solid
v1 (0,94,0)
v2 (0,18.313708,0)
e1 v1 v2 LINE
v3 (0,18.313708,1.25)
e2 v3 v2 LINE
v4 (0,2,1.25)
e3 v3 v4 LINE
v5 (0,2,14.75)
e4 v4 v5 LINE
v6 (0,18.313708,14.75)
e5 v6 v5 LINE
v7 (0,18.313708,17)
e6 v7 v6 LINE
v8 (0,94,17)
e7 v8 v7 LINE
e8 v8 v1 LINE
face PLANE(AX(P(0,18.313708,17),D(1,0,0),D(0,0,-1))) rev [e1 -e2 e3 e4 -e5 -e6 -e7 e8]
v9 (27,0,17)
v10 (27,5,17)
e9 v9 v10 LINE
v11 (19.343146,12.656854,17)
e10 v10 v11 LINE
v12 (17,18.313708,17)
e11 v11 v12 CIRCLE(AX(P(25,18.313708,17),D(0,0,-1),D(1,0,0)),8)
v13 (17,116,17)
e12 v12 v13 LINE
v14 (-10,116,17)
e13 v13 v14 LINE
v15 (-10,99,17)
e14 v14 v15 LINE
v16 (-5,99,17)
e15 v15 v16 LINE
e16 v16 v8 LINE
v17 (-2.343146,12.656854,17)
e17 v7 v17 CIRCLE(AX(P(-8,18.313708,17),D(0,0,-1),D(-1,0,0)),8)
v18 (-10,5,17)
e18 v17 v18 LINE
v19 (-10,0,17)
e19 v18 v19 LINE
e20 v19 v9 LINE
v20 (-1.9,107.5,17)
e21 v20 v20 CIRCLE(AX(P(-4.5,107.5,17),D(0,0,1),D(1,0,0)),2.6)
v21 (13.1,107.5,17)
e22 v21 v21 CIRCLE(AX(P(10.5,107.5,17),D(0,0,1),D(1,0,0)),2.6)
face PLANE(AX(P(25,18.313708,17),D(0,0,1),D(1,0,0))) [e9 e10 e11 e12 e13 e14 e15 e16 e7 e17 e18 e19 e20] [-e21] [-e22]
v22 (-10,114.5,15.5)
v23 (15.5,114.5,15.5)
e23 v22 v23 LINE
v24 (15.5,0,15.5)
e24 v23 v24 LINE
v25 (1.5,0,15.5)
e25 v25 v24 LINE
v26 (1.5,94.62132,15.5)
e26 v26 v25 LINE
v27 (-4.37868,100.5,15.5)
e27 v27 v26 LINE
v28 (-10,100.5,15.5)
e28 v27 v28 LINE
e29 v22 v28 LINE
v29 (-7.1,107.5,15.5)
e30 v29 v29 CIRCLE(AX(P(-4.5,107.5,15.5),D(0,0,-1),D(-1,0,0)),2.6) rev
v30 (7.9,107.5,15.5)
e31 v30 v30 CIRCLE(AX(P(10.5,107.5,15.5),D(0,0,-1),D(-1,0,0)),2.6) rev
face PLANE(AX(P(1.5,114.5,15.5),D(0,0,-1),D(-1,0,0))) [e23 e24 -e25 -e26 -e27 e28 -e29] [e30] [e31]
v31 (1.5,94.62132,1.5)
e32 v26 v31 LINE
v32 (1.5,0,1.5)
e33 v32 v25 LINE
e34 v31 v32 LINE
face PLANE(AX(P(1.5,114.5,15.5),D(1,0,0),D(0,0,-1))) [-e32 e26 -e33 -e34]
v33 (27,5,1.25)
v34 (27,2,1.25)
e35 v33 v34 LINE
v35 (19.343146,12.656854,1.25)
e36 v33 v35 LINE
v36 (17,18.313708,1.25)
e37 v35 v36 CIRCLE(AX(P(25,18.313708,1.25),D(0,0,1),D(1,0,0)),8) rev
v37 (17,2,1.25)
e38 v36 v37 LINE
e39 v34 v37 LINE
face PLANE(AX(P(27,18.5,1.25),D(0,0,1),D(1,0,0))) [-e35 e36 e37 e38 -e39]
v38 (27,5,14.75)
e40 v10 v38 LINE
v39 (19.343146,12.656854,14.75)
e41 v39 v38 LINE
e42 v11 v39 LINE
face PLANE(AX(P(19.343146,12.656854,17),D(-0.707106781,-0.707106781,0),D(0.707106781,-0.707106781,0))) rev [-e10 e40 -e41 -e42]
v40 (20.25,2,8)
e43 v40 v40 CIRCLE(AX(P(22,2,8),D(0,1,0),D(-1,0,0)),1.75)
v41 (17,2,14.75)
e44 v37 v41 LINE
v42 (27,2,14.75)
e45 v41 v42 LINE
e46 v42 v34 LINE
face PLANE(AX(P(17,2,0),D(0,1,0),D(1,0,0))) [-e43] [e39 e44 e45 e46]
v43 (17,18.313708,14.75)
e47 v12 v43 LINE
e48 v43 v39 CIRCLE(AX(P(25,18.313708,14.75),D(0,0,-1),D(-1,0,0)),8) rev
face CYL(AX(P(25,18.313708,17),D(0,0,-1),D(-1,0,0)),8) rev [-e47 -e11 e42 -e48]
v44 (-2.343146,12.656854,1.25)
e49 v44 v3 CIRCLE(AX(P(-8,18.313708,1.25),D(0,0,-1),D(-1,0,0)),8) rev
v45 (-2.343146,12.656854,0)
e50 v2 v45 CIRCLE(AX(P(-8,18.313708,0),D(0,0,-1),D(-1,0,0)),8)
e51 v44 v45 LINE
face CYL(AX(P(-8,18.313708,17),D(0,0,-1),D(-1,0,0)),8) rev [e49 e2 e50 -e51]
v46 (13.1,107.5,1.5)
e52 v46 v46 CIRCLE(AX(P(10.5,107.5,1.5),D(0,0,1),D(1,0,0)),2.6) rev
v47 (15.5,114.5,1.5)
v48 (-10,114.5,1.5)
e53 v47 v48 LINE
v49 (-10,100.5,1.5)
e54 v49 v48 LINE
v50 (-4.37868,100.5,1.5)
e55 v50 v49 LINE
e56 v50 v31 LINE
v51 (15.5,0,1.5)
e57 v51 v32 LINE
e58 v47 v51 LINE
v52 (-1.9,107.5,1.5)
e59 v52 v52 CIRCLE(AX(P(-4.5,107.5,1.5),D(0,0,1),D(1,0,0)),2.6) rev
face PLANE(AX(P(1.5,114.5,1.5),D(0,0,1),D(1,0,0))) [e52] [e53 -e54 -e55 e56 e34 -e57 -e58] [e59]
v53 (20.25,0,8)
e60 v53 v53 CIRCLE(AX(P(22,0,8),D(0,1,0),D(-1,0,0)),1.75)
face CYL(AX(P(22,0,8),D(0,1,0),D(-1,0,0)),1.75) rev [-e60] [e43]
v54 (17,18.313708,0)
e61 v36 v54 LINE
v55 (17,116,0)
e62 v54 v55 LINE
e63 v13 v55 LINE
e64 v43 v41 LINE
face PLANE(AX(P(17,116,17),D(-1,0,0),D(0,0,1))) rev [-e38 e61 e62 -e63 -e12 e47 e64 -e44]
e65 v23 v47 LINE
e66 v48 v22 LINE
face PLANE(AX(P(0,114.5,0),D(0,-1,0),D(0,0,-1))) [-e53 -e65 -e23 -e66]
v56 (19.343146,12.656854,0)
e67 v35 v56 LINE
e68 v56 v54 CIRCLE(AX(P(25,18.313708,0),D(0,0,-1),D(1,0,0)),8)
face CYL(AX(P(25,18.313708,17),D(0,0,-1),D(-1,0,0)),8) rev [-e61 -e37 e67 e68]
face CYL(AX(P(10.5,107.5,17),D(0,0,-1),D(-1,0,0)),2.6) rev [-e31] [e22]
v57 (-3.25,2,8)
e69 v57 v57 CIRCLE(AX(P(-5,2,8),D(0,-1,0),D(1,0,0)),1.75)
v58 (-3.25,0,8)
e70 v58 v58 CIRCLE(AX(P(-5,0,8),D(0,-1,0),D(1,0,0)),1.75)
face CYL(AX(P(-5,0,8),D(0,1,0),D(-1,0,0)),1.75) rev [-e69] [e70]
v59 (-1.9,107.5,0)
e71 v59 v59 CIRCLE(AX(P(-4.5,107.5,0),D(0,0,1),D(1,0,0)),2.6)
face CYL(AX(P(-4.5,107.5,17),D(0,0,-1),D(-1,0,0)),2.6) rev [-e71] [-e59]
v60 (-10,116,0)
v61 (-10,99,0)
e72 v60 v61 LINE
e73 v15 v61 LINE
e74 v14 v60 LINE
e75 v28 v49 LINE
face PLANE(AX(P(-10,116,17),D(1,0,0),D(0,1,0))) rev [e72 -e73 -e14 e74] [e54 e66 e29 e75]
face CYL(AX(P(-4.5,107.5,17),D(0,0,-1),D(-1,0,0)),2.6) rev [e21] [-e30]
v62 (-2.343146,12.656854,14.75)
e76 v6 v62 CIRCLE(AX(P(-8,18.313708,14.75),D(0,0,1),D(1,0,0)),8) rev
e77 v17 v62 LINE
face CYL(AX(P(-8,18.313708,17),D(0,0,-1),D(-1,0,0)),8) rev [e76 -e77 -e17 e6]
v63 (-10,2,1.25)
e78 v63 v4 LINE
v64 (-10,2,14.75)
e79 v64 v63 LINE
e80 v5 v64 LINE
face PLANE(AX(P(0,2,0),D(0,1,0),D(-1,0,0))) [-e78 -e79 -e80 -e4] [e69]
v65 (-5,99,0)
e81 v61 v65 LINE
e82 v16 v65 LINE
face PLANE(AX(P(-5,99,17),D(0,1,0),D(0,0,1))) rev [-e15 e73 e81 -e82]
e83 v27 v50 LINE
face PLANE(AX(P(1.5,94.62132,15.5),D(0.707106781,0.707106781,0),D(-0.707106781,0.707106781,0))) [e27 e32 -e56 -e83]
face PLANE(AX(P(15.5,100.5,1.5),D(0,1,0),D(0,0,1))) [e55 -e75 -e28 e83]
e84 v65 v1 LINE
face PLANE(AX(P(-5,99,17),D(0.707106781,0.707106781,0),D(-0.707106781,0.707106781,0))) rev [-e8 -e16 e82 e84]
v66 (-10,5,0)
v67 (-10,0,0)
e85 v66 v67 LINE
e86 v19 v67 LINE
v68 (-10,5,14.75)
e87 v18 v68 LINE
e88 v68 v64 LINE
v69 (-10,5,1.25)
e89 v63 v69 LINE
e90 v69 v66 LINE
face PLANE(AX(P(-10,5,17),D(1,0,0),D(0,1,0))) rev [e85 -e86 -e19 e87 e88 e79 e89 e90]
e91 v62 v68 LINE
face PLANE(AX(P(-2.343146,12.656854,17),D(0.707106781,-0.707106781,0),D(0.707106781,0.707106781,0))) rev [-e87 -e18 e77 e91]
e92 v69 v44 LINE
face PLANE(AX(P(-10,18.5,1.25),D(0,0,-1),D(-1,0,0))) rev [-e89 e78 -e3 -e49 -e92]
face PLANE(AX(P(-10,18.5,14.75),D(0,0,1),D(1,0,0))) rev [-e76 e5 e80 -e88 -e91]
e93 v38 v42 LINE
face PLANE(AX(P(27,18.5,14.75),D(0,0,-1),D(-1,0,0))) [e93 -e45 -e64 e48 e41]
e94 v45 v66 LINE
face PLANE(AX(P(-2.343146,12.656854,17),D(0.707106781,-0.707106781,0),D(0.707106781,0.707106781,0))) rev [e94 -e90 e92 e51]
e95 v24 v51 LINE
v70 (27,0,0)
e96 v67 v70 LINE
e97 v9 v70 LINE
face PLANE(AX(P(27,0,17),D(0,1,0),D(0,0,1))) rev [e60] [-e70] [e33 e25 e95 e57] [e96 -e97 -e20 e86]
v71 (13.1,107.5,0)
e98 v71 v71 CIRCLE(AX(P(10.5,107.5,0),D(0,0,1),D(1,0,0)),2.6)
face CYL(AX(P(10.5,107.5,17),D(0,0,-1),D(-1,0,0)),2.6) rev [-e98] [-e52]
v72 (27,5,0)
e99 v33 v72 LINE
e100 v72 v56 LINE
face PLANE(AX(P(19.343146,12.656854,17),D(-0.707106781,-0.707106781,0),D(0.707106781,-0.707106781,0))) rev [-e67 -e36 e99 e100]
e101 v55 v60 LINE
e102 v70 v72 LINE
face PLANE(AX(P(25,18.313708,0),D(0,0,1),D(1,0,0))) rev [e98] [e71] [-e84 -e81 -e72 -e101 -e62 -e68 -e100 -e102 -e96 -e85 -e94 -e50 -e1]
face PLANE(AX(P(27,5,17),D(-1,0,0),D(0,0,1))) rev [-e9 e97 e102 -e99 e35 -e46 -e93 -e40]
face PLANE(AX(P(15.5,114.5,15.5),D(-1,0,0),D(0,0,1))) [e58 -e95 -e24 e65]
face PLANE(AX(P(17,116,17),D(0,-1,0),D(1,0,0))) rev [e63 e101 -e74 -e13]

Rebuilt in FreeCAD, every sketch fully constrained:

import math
import FreeCAD as App
import Part
import Sketcher

V = App.Vector


def add_polygon(sketch, points):
    """Adds a closed chain of lines whose ends are joined by coincident constraints."""
    first, n = sketch.GeometryCount, len(points)
    for a, b in zip(points, points[1:] + points[:1]):
        sketch.addGeometry(Part.LineSegment(App.Vector(*a, 0), App.Vector(*b, 0)), False)
    for i in range(n):
        sketch.addConstraint(Sketcher.Constraint("Coincident", first + i, 2, first + (i + 1) % n, 1))

doc = App.newDocument("Part")
body = doc.addObject("PartDesign::Body", "Body")

# Sketch on XY plane
sketch1 = body.newObject("Sketcher::SketchObject", "Sketch")
sketch1.AttachmentSupport = (doc.getObject("XY_Plane"), [""])
sketch1.MapMode = "FlatFace"
sketch1.addGeometry([
    Part.LineSegment(V(0, 94, 0), V(0, 18, 0)),  # 0
    Part.ArcOfCircle(Part.Circle(V(-8, 18, 0), V(0, 0, 1), 8), math.radians(-45), math.radians(0)),  # 1
    Part.LineSegment(V(-2, 13, 0), V(-10, 5, 0)),  # 2
    Part.LineSegment(V(-10, 5, 0), V(-10, 0, 0)),  # 3
    Part.LineSegment(V(-10, 0, 0), V(27, 0, 0)),  # 4
    Part.LineSegment(V(27, 0, 0), V(27, 5, 0)),  # 5
    Part.LineSegment(V(27, 5, 0), V(19, 13, 0)),  # 6
    Part.ArcOfCircle(Part.Circle(V(25, 18, 0), V(0, 0, 1), 8), math.radians(180), math.radians(225)),  # 7
    Part.LineSegment(V(17, 18, 0), V(17, 116, 0)),  # 8
    Part.LineSegment(V(17, 116, 0), V(-10, 116, 0)),  # 9
    Part.LineSegment(V(-10, 116, 0), V(-10, 99, 0)),  # 10
    Part.LineSegment(V(-10, 99, 0), V(-5, 99, 0)),  # 11
    Part.LineSegment(V(-5, 99, 0), V(0, 94, 0)),  # 12
], False)
sketch1.addConstraint([
    Sketcher.Constraint("Tangent", 0, 2, 1, 2),
    Sketcher.Constraint("Tangent", 1, 1, 2, 1),
    Sketcher.Constraint("Coincident", 2, 2, 3, 1),
    Sketcher.Constraint("Coincident", 3, 2, 4, 1),
    Sketcher.Constraint("Coincident", 4, 2, 5, 1),
    Sketcher.Constraint("Coincident", 5, 2, 6, 1),
    Sketcher.Constraint("Tangent", 6, 2, 7, 2),
    Sketcher.Constraint("Tangent", 7, 1, 8, 1),
    Sketcher.Constraint("Coincident", 8, 2, 9, 1),
    Sketcher.Constraint("Coincident", 9, 2, 10, 1),
    Sketcher.Constraint("Coincident", 10, 2, 11, 1),
    Sketcher.Constraint("Coincident", 11, 2, 12, 1),
    Sketcher.Constraint("Coincident", 12, 2, 0, 1),
    Sketcher.Constraint("Vertical", 0),
    Sketcher.Constraint("Vertical", 3),
    Sketcher.Constraint("Horizontal", 4),
    Sketcher.Constraint("Vertical", 5),
    Sketcher.Constraint("Vertical", 8),
    Sketcher.Constraint("Horizontal", 9),
    Sketcher.Constraint("Vertical", 10),
    Sketcher.Constraint("Horizontal", 11),
    Sketcher.Constraint("Equal", 1, 7),
    Sketcher.Constraint("PointOnObject", 0, 2, -2),
    Sketcher.Constraint("PointOnObject", 3, 2, -1),
    Sketcher.Constraint("Perpendicular", 2, 6),
    Sketcher.Constraint("Parallel", 6, 12),
    Sketcher.Constraint("Horizontal", 1, 3, 7, 3),
    Sketcher.Constraint("Horizontal", 2, 2, 5, 2),
    Sketcher.Constraint("Horizontal", 1, 1, 6, 2),
    Sketcher.Constraint("Vertical", 3, 2, 9, 2),
    Sketcher.Constraint("Equal", 11, 3),
    Sketcher.Constraint("Radius", 1, 8.0),
    Sketcher.Constraint("DistanceX", 4, 1, 4, 2, 37.0),
    Sketcher.Constraint("DistanceX", 9, 2, 9, 1, 27.0),
    Sketcher.Constraint("DistanceX", 11, 1, 11, 2, 5.0),
    Sketcher.Constraint("DistanceY", 10, 2, 10, 1, 17.0),
    Sketcher.Constraint("DistanceY", -1, 1, 8, 2, 116.0),
])
pad1 = body.newObject("PartDesign::Pad", "Pad")
pad1.Profile = sketch1
pad1.Length = 17

# Sketch on XZ plane
sketch2 = body.newObject("Sketcher::SketchObject", "Sketch001")
sketch2.AttachmentSupport = (doc.getObject("XZ_Plane"), [""])
sketch2.MapMode = "FlatFace"
sketch2.AttachmentOffset = App.Placement(V(0, 0, -2), App.Rotation())
add_polygon(sketch2, [(0, 1), (0, 15), (-10, 15), (-10, 1)])  # lines 0-3
sketch2.addConstraint([
    Sketcher.Constraint("Vertical", 0),
    Sketcher.Constraint("Horizontal", 1),
    Sketcher.Constraint("Vertical", 2),
    Sketcher.Constraint("Horizontal", 3),
    Sketcher.Constraint("PointOnObject", 0, 2, -2),
    Sketcher.Constraint("DistanceX", 1, 2, 1, 1, 10.0),
    Sketcher.Constraint("DistanceY", 0, 1, 0, 2, 13.5),
    Sketcher.Constraint("DistanceY", -1, 1, 0, 2, 14.75),
])
pocket1 = body.newObject("PartDesign::Pocket", "Pocket")
pocket1.Profile = sketch2
pocket1.Length = 16.5

# Sketch on XZ plane
sketch3 = body.newObject("Sketcher::SketchObject", "Sketch002")
sketch3.AttachmentSupport = (doc.getObject("XZ_Plane"), [""])
sketch3.MapMode = "FlatFace"
sketch3.AttachmentOffset = App.Placement(V(0, 0, -2), App.Rotation())
sketch3.addGeometry(Part.Circle(V(-5, 8, 0), V(0, 0, 1), 1.8), False)
sketch3.addConstraint([
    Sketcher.Constraint("Diameter", 0, 3.5),
    Sketcher.Constraint("DistanceX", 0, 3, -1, 1, 5.0),
    Sketcher.Constraint("DistanceY", -1, 1, 0, 3, 8.0),
])
pocket2 = body.newObject("PartDesign::Pocket", "Pocket001")
pocket2.Profile = sketch3
pocket2.Type = "ThroughAll"
pocket2.Reversed = True
doc.recompute()

datumplane = body.newObject("PartDesign::Plane", "DatumPlane")
datumplane.AttachmentSupport = (doc.getObject("YZ_Plane"), [""])
datumplane.MapMode = "FlatFace"
datumplane.AttachmentOffset = App.Placement(V(0, 0, 8.5), App.Rotation())
mirrored = body.newObject("PartDesign::Mirrored", "Mirrored")
mirrored.Originals = [pocket1]
mirrored.MirrorPlane = (datumplane, [""])
body.Tip = mirrored
doc.recompute()

datumplane2 = body.newObject("PartDesign::Plane", "DatumPlane001")
datumplane2.AttachmentSupport = (doc.getObject("YZ_Plane"), [""])
datumplane2.MapMode = "FlatFace"
datumplane2.AttachmentOffset = App.Placement(V(0, 0, 8.5), App.Rotation())
mirrored2 = body.newObject("PartDesign::Mirrored", "Mirrored001")
mirrored2.Originals = [pocket2]
mirrored2.MirrorPlane = (datumplane2, [""])
body.Tip = mirrored2

# Sketch on XZ plane
sketch4 = body.newObject("Sketcher::SketchObject", "Sketch003")
sketch4.AttachmentSupport = (doc.getObject("XZ_Plane"), [""])
sketch4.MapMode = "FlatFace"
add_polygon(sketch4, [(2, 2), (2, 16), (16, 16), (16, 2)])  # lines 0-3
sketch4.addConstraint([
    Sketcher.Constraint("Vertical", 0),
    Sketcher.Constraint("Horizontal", 1),
    Sketcher.Constraint("Vertical", 2),
    Sketcher.Constraint("Horizontal", 3),
    Sketcher.Constraint("Equal", 3, 0),
    Sketcher.Constraint("DistanceX", 1, 1, 1, 2, 14.0),
    Sketcher.Constraint("DistanceX", -1, 1, 0, 2, 1.5),
    Sketcher.Constraint("DistanceY", -1, 1, 0, 2, 15.5),
])
pocket3 = body.newObject("PartDesign::Pocket", "Pocket002")
pocket3.Profile = sketch4
pocket3.Length = 114.5

# Sketch on YZ plane
sketch5 = body.newObject("Sketcher::SketchObject", "Sketch004")
sketch5.AttachmentSupport = (doc.getObject("YZ_Plane"), [""])
sketch5.MapMode = "FlatFace"
sketch5.AttachmentOffset = App.Placement(V(0, 0, -10), App.Rotation())
add_polygon(sketch5, [(114, 16), (100, 16), (100, 2), (114, 2)])  # lines 0-3
sketch5.addConstraint([
    Sketcher.Constraint("Horizontal", 0),
    Sketcher.Constraint("Vertical", 1),
    Sketcher.Constraint("Horizontal", 2),
    Sketcher.Constraint("Vertical", 3),
    Sketcher.Constraint("Equal", 2, 1),
    Sketcher.Constraint("DistanceX", 0, 2, 0, 1, 14.0),
    Sketcher.Constraint("DistanceX", -1, 1, 0, 2, 100.5),
    Sketcher.Constraint("DistanceY", -1, 1, 0, 2, 15.5),
])
pocket4 = body.newObject("PartDesign::Pocket", "Pocket003")
pocket4.Profile = sketch5
pocket4.Length = 25.5
pocket4.Reversed = True

# Sketch on XY plane
sketch6 = body.newObject("Sketcher::SketchObject", "Sketch005")
sketch6.AttachmentSupport = (doc.getObject("XY_Plane"), [""])
sketch6.MapMode = "FlatFace"
sketch6.AttachmentOffset = App.Placement(V(0, 0, 1.5), App.Rotation())
add_polygon(sketch6, [(-4, 100), (2, 95), (2, 100)])  # lines 0-2
sketch6.addConstraint([
    Sketcher.Constraint("Vertical", 1),
    Sketcher.Constraint("Horizontal", 2),
    Sketcher.Constraint("Equal", 2, 1),
    Sketcher.Constraint("DistanceX", -1, 1, 0, 2, 1.5),
    Sketcher.Constraint("DistanceY", -1, 1, 1, 2, 100.5),
    Sketcher.Constraint("DistanceX", 2, 2, 2, 1, 5.87868),
])
pocket5 = body.newObject("PartDesign::Pocket", "Pocket004")
pocket5.Profile = sketch6
pocket5.Length = 14
pocket5.Reversed = True

# Sketch on XY plane
sketch7 = body.newObject("Sketcher::SketchObject", "Sketch006")
sketch7.AttachmentSupport = (doc.getObject("XY_Plane"), [""])
sketch7.MapMode = "FlatFace"
sketch7.addGeometry([
    Part.Circle(V(10.5, 107.5, 0), V(0, 0, 1), 2.6),
    Part.Circle(V(-4.5, 107.5, 0), V(0, 0, 1), 2.6),
], False)
sketch7.addConstraint([
    Sketcher.Constraint("Equal", 0, 1),
    Sketcher.Constraint("Horizontal", 0, 3, 1, 3),
    Sketcher.Constraint("Diameter", 0, 5.2),
    Sketcher.Constraint("DistanceX", 1, 3, 0, 3, 15.0),
    Sketcher.Constraint("DistanceX", -1, 1, 0, 3, 10.5),
    Sketcher.Constraint("DistanceY", -1, 1, 0, 3, 107.5),
])
pocket6 = body.newObject("PartDesign::Pocket", "Pocket005")
pocket6.Profile = sketch7
pocket6.Type = "ThroughAll"
pocket6.Reversed = True

doc.recompute()
